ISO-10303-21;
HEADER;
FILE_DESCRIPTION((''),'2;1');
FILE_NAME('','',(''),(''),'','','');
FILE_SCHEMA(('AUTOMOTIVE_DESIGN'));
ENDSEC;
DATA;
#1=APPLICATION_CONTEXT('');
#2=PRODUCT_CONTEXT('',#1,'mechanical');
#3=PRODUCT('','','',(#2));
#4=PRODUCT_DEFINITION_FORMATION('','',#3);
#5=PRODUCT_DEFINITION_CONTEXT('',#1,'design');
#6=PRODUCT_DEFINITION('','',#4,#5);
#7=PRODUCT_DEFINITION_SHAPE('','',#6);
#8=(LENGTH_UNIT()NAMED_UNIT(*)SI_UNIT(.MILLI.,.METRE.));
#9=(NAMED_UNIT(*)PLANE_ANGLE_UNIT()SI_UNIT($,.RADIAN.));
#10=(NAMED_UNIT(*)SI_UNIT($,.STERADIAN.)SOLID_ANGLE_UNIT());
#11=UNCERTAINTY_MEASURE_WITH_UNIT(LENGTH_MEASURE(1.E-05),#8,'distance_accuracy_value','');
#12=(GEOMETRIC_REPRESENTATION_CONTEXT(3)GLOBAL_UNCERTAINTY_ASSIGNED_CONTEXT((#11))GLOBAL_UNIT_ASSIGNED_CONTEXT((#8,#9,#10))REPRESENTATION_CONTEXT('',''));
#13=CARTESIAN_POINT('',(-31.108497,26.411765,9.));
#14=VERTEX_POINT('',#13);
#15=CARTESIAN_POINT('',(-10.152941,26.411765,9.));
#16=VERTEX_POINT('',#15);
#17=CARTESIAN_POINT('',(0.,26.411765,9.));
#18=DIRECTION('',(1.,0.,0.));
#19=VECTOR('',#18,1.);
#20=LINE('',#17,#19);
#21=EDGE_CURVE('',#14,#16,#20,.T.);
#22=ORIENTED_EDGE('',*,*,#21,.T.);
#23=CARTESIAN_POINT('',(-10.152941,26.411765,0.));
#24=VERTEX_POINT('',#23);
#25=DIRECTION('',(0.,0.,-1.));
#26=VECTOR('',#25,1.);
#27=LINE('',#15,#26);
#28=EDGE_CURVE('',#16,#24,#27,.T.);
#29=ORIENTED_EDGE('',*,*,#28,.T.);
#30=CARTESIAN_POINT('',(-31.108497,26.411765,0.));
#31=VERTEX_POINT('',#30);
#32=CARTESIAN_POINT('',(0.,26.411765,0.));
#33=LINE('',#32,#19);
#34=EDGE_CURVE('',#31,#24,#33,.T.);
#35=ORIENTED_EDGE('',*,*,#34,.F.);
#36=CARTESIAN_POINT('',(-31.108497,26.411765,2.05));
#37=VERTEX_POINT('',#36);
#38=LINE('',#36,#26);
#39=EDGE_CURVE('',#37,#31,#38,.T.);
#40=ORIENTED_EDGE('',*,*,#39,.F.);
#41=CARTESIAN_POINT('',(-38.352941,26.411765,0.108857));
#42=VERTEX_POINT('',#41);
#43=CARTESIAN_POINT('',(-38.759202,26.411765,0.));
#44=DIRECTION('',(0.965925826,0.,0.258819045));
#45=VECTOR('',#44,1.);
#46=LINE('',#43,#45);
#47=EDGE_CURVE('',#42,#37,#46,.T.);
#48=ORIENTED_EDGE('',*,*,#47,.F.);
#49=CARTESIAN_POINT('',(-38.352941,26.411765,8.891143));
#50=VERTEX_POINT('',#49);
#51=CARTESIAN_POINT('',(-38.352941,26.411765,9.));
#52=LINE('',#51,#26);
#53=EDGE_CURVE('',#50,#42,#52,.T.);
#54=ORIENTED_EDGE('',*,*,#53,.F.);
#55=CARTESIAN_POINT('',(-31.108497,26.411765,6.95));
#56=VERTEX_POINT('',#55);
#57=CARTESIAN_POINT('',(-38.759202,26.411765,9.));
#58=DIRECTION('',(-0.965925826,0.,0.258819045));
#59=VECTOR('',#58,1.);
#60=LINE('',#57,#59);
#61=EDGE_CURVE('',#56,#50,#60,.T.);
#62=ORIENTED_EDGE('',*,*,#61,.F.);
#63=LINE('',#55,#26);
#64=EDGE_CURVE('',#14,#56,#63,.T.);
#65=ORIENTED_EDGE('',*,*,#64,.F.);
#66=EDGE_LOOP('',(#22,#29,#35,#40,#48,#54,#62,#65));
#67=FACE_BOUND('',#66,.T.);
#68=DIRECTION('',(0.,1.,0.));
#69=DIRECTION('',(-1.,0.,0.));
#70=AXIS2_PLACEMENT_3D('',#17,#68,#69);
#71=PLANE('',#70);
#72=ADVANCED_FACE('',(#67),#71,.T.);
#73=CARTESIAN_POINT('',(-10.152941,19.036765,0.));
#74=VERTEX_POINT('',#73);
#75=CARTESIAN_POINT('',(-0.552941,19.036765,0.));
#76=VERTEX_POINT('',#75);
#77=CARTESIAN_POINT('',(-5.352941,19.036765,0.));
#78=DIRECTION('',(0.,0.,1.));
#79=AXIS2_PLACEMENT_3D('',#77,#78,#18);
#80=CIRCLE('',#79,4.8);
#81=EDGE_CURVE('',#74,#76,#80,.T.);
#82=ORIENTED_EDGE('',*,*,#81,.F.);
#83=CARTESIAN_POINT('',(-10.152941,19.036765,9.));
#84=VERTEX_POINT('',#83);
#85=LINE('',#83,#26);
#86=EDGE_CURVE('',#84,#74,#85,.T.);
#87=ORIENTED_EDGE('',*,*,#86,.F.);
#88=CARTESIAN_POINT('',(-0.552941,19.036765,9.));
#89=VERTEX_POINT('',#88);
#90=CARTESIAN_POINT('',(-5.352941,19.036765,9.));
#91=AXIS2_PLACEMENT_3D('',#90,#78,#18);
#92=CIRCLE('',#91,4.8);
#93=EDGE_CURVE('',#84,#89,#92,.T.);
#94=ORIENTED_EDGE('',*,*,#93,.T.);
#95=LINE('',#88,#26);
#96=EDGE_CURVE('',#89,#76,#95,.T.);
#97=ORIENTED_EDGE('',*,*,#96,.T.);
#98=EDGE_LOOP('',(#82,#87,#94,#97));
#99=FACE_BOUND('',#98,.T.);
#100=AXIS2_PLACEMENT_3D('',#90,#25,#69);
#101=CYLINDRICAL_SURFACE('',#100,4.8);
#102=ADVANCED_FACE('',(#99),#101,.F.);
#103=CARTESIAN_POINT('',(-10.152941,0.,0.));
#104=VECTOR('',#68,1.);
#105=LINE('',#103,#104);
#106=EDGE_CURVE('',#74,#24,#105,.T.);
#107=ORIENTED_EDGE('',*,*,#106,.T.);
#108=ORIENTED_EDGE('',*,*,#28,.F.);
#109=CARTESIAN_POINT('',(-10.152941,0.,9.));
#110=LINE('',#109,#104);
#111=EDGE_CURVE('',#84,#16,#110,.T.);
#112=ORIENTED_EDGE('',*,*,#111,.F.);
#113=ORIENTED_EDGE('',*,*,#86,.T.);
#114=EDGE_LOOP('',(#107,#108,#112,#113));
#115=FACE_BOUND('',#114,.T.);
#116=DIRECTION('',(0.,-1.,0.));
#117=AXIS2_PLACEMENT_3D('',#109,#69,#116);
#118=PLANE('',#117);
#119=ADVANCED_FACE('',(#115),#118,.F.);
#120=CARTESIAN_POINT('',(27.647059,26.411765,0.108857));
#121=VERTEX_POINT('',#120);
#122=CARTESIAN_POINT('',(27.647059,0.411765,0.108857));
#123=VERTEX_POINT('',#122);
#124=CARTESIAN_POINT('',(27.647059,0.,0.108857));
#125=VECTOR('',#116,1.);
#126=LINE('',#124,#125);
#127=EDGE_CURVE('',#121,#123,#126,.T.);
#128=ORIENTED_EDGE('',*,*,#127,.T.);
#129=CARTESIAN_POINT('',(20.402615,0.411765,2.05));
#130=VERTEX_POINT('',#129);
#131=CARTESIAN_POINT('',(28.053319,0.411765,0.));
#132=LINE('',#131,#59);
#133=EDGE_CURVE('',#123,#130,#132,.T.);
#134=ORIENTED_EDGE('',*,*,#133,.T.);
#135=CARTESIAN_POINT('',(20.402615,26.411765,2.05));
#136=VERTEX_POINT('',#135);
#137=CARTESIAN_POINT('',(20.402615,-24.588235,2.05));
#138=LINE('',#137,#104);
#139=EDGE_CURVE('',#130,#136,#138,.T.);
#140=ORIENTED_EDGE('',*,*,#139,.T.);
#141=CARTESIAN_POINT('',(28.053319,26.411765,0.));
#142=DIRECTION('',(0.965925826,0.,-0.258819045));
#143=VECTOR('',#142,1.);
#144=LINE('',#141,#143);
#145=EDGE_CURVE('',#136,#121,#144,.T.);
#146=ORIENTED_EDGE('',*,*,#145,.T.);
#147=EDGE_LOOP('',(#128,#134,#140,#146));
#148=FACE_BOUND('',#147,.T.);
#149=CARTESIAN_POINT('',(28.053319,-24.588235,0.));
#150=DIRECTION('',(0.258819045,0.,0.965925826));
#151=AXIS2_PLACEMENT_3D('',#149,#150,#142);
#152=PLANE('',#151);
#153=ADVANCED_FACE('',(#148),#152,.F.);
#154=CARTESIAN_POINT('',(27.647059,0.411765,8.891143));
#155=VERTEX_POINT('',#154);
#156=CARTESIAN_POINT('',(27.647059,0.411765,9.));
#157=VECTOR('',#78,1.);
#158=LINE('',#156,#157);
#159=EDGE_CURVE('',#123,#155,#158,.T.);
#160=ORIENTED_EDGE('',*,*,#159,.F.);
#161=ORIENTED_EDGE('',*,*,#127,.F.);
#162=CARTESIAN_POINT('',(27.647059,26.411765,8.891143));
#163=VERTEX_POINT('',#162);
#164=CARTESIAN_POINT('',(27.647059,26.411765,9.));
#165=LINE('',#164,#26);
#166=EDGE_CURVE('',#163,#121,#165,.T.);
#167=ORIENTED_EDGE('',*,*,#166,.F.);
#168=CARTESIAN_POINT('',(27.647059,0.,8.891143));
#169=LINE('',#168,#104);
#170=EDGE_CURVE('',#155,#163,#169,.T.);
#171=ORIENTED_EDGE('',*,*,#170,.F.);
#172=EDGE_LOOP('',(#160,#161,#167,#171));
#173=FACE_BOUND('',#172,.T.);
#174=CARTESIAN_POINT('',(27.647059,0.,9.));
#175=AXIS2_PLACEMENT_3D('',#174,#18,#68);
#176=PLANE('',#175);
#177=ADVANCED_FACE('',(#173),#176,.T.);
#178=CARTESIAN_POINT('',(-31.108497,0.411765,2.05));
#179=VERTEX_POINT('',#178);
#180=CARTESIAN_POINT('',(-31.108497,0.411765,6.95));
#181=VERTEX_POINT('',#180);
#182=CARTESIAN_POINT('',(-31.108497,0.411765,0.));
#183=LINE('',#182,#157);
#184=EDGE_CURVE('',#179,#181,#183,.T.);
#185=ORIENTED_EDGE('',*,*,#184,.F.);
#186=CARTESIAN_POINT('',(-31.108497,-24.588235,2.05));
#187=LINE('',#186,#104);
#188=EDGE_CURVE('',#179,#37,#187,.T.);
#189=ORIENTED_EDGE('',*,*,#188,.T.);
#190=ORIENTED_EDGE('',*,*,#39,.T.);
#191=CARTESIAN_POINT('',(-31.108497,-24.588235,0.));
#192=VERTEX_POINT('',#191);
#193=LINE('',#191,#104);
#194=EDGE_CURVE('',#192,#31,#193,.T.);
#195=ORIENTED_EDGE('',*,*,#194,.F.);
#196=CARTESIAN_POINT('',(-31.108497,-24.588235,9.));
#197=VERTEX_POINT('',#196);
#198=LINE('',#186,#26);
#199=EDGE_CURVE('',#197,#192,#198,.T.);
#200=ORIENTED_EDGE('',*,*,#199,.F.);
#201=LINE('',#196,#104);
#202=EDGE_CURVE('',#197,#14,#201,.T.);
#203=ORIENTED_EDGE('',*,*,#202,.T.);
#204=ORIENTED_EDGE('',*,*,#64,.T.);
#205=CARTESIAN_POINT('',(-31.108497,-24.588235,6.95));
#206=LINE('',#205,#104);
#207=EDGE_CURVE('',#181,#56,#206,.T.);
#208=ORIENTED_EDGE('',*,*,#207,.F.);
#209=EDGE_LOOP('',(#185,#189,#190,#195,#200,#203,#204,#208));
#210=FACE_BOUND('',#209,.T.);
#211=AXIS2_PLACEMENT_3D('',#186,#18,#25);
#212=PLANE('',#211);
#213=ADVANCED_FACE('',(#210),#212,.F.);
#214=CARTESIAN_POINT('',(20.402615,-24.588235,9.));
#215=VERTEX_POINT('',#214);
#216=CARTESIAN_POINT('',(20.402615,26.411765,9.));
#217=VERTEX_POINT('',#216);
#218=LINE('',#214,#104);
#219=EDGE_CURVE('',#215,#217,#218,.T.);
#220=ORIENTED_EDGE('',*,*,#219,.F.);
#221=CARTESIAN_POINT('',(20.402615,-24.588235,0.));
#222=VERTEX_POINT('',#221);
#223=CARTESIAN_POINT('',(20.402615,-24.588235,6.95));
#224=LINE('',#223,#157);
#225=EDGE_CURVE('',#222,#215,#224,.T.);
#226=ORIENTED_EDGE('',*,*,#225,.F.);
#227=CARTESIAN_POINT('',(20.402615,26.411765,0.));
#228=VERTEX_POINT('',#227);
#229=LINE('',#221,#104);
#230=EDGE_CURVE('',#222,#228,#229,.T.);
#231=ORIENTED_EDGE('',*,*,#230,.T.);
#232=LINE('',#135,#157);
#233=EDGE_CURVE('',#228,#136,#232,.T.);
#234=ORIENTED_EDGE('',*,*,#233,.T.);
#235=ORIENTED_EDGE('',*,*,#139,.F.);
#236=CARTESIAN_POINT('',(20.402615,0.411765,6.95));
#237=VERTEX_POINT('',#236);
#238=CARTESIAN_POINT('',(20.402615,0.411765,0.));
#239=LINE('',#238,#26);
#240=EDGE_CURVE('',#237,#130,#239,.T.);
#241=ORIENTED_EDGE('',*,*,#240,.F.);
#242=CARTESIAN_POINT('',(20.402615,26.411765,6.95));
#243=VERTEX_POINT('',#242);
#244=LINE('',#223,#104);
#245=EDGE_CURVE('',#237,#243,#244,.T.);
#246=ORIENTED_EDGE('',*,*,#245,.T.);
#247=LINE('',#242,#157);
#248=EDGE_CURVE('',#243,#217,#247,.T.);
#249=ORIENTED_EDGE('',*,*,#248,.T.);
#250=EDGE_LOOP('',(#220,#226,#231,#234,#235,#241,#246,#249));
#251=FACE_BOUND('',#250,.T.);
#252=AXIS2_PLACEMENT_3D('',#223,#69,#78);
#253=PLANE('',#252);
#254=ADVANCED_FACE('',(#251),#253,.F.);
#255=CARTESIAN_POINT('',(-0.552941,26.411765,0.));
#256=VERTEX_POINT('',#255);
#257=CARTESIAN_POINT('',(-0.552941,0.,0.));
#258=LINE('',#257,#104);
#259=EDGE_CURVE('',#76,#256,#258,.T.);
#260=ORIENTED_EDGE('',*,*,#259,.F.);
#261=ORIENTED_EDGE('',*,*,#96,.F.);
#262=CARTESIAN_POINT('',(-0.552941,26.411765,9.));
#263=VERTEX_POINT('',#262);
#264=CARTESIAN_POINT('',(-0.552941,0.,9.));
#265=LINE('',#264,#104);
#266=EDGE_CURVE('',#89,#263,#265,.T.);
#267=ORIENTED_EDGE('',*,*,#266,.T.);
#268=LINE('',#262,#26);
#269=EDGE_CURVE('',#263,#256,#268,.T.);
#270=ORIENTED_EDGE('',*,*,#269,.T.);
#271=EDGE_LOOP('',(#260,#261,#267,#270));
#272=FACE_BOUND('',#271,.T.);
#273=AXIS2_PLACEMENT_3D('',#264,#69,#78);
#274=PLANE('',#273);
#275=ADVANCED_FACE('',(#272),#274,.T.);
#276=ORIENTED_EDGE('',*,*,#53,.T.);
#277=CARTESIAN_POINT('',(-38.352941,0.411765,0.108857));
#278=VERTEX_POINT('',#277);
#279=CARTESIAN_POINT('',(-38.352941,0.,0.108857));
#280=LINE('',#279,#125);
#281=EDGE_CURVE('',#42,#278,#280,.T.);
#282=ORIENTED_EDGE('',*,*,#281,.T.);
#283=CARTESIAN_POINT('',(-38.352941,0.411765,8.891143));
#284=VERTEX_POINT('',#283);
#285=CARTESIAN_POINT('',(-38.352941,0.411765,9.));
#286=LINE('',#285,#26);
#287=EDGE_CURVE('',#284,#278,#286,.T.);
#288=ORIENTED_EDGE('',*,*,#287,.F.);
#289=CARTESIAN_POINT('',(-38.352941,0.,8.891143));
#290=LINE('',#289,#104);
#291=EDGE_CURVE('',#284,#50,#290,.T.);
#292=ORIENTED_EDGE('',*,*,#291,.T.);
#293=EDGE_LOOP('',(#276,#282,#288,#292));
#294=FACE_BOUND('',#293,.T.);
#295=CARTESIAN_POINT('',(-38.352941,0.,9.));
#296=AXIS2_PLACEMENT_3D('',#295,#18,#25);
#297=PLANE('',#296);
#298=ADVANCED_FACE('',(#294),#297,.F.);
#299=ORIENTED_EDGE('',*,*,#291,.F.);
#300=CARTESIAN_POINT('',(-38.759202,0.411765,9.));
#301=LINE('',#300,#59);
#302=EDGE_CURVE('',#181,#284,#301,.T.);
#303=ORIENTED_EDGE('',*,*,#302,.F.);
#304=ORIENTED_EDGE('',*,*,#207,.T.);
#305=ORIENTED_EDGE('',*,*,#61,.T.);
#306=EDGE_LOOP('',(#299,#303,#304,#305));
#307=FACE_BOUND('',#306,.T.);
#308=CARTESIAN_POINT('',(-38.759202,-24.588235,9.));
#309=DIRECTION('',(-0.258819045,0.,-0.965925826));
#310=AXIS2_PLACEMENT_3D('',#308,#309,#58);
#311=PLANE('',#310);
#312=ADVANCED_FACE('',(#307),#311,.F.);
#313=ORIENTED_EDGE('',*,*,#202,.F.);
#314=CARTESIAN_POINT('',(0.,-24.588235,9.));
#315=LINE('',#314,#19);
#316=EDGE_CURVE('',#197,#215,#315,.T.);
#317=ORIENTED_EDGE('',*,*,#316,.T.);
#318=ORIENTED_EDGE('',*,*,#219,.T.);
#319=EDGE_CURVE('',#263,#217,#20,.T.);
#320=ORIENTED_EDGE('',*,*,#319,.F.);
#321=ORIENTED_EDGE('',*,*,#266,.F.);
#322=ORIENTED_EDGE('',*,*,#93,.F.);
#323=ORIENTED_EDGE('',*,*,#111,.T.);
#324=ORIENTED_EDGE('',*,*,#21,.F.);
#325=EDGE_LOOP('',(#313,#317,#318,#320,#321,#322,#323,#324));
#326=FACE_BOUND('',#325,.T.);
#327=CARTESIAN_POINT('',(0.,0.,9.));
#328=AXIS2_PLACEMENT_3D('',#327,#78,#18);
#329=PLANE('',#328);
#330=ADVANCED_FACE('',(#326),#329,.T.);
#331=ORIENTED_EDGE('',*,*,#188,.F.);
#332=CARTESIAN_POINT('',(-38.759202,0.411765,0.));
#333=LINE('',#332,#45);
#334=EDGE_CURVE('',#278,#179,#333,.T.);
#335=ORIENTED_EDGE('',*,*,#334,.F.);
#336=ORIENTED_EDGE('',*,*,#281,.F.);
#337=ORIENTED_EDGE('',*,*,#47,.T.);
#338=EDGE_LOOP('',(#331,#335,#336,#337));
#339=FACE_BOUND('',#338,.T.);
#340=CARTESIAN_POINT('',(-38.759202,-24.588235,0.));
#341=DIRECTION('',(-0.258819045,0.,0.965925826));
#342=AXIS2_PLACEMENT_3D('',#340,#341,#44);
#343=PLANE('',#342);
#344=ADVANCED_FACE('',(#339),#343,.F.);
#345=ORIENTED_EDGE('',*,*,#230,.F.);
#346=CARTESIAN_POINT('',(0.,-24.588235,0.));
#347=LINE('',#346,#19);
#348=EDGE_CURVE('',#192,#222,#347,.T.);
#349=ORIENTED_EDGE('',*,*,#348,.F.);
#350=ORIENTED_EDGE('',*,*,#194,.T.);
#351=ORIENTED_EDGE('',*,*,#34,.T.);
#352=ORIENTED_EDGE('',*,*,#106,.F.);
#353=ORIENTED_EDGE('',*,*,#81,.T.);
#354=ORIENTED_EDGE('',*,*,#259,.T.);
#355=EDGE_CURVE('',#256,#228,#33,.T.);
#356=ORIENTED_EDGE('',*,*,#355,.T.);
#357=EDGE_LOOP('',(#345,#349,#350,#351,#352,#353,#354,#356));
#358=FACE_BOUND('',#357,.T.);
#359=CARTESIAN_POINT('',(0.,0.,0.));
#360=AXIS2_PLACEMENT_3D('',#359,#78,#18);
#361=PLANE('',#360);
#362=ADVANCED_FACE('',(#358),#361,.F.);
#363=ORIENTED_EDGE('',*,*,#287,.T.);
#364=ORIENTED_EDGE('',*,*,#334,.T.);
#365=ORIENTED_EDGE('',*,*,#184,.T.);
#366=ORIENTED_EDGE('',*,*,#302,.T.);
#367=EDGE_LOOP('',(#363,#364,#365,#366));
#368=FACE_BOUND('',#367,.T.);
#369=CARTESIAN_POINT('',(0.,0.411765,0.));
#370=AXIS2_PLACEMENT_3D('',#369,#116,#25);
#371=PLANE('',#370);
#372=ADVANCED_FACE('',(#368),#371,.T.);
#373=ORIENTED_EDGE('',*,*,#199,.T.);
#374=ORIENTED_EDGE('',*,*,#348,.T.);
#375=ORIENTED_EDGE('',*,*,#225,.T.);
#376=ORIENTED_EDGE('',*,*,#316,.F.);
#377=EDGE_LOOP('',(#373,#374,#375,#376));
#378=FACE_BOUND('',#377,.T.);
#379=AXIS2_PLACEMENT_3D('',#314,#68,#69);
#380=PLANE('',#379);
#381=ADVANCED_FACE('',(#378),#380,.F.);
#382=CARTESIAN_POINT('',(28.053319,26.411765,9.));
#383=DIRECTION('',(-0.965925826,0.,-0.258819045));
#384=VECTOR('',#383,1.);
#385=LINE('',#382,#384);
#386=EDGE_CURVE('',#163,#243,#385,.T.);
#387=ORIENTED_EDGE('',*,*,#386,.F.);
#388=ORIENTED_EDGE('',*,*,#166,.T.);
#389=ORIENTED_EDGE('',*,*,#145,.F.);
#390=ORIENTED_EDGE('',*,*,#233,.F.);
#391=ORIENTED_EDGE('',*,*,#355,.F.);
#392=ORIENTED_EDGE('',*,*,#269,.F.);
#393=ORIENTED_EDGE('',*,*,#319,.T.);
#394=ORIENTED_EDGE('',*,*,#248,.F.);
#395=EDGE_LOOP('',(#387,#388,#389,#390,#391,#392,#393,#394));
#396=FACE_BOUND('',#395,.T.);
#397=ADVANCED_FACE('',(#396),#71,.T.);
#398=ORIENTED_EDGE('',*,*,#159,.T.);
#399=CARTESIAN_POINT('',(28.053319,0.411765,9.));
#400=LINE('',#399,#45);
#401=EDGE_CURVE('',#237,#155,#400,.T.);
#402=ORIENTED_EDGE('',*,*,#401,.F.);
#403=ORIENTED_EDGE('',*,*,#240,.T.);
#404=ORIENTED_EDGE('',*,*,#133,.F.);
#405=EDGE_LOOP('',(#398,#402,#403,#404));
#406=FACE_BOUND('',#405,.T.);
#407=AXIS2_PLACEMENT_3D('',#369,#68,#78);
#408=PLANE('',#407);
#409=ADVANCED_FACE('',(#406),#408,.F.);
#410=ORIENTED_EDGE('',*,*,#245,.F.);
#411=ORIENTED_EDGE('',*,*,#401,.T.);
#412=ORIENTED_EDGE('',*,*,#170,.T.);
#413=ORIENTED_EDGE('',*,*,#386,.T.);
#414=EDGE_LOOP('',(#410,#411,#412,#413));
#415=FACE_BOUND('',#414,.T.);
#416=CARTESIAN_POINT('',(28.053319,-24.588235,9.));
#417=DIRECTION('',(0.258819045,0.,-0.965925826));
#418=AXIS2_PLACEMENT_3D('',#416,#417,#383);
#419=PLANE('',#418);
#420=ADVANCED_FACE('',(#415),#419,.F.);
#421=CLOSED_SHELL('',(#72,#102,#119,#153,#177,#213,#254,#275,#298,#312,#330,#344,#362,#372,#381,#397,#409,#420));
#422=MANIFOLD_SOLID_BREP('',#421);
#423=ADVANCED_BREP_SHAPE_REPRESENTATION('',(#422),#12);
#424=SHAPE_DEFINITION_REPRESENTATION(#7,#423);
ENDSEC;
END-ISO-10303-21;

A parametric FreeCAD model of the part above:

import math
import FreeCAD as App
import Part
import Sketcher

V = App.Vector
Q = App.Units.Quantity


def add_polygon(sketch, points):
    """Adds a closed chain of lines whose ends are joined by coincident constraints."""
    first, n = sketch.GeometryCount, len(points)
    for a, b in zip(points, points[1:] + points[:1]):
        sketch.addGeometry(Part.LineSegment(App.Vector(*a, 0), App.Vector(*b, 0)), False)
    for i in range(n):
        sketch.addConstraint(Sketcher.Constraint("Coincident", first + i, 2, first + (i + 1) % n, 1))

doc = App.newDocument("Part")
body = doc.addObject("PartDesign::Body", "Body")

# Sketch on XY plane
sketch1 = body.newObject("Sketcher::SketchObject", "Sketch")
sketch1.AttachmentSupport = (doc.getObject("XY_Plane"), [""])
sketch1.MapMode = "FlatFace"
sketch1.addGeometry([
    Part.LineSegment(V(-10.2, 19, 0), V(-10.2, 26.4, 0)),  # 0
    Part.LineSegment(V(-10.2, 26.4, 0), V(-38.4, 26.4, 0)),  # 1
    Part.LineSegment(V(-38.4, 26.4, 0), V(-38.4, -24.6, 0)),  # 2
    Part.LineSegment(V(-38.4, -24.6, 0), V(27.6, -24.6, 0)),  # 3
    Part.LineSegment(V(27.6, -24.6, 0), V(27.6, 26.4, 0)),  # 4
    Part.LineSegment(V(27.6, 26.4, 0), V(-0.6, 26.4, 0)),  # 5
    Part.LineSegment(V(-0.6, 26.4, 0), V(-0.6, 19, 0)),  # 6
    Part.ArcOfCircle(Part.Circle(V(-5.4, 19, 0), V(0, 0, 1), 4.8), math.radians(180), math.radians(360)),  # 7
], False)
sketch1.addConstraint([
    Sketcher.Constraint("Coincident", 0, 2, 1, 1),
    Sketcher.Constraint("Coincident", 1, 2, 2, 1),
    Sketcher.Constraint("Coincident", 2, 2, 3, 1),
    Sketcher.Constraint("Coincident", 3, 2, 4, 1),
    Sketcher.Constraint("Coincident", 4, 2, 5, 1),
    Sketcher.Constraint("Coincident", 5, 2, 6, 1),
    Sketcher.Constraint("Tangent", 6, 2, 7, 2),
    Sketcher.Constraint("Tangent", 7, 1, 0, 1),
    Sketcher.Constraint("Vertical", 0),
    Sketcher.Constraint("Horizontal", 1),
    Sketcher.Constraint("Vertical", 2),
    Sketcher.Constraint("Horizontal", 3),
    Sketcher.Constraint("Vertical", 4),
    Sketcher.Constraint("Horizontal", 5),
    Sketcher.Constraint("Vertical", 6),
    Sketcher.Constraint("Horizontal", 1, 2, 4, 2),
    Sketcher.Constraint("Equal", 1, 5),
    Sketcher.Constraint("Radius", 7, Q("4.8 mm")),
    Sketcher.Constraint("DistanceX", 3, 1, 3, 2, Q("66 mm")),
    Sketcher.Constraint("DistanceY", 2, 2, 2, 1, Q("51 mm")),
    Sketcher.Constraint("DistanceY", 0, 1, 0, 2, Q("7.375 mm")),
    Sketcher.Constraint("DistanceX", 7, 3, -1, 1, Q("5.352941 mm")),
    Sketcher.Constraint("DistanceY", -1, 1, 7, 3, Q("19.036765 mm")),
])
pad1 = body.newObject("PartDesign::Pad", "Pad")
pad1.Profile = sketch1
pad1.Length = 9

# Sketch on XZ plane
sketch2 = body.newObject("Sketcher::SketchObject", "Sketch001")
sketch2.AttachmentSupport = (doc.getObject("XZ_Plane"), [""])
sketch2.MapMode = "FlatFace"
sketch2.AttachmentOffset = App.Placement(V(0, 0, -26.411765), App.Rotation())
add_polygon(sketch2, [(20.4, 2), (28.1, 0), (20.4, 0)])  # lines 0-2
add_polygon(sketch2, [(28.1, 9), (20.4, 7), (20.4, 9)])  # lines 3-5
add_polygon(sketch2, [(-38.8, 0), (-31.1, 2), (-31.1, 0)])  # lines 6-8
add_polygon(sketch2, [(-31.1, 7), (-38.8, 9), (-31.1, 9)])  # lines 9-11
sketch2.addConstraint([
    Sketcher.Constraint("Horizontal", 1),
    Sketcher.Constraint("Vertical", 2),
    Sketcher.Constraint("Vertical", 4),
    Sketcher.Constraint("Horizontal", 5),
    Sketcher.Constraint("Vertical", 7),
    Sketcher.Constraint("Horizontal", 8),
    Sketcher.Constraint("Horizontal", 10),
    Sketcher.Constraint("Vertical", 11),
    Sketcher.Constraint("PointOnObject", 0, 2, -1),
    Sketcher.Constraint("PointOnObject", 7, 2, -1),
    Sketcher.Constraint("Parallel", 3, 6),
    Sketcher.Constraint("Parallel", 0, 9),
    Sketcher.Constraint("Horizontal", 2, 2, 6, 2),
    Sketcher.Constraint("Horizontal", 5, 2, 9, 2),
    Sketcher.Constraint("Horizontal", 3, 2, 11, 2),
    Sketcher.Constraint("Vertical", 2, 2, 3, 2),
    Sketcher.Constraint("Vertical", 0, 2, 5, 2),
    Sketcher.Constraint("Vertical", 8, 2, 9, 2),
    Sketcher.Constraint("Vertical", 7, 2, 10, 2),
    Sketcher.Constraint("Angle", 0, Q("-15 deg")),
    Sketcher.Constraint("DistanceY", -1, 1, 4, 2, Q("9 mm")),
    Sketcher.Constraint("DistanceY", 2, 1, 2, 2, Q("2.05 mm")),
    Sketcher.Constraint("DistanceX", 8, 2, -1, 1, Q("38.759202 mm")),
    Sketcher.Constraint("DistanceX", -1, 1, 0, 2, Q("28.053319 mm")),
])
pocket1 = body.newObject("PartDesign::Pocket", "Pocket")
pocket1.Profile = sketch2
pocket1.Type = "ThroughAll"
pocket1.Reversed = True

# Sketch on XZ plane
sketch3 = body.newObject("Sketcher::SketchObject", "Sketch002")
sketch3.AttachmentSupport = (doc.getObject("XZ_Plane"), [""])
sketch3.MapMode = "FlatFace"
sketch3.AttachmentOffset = App.Placement(V(0, 0, 24.588235), App.Rotation())
add_polygon(sketch3, [(-39, 9), (-39, 0), (-31, 0), (-31, 9)])  # lines 0-3
add_polygon(sketch3, [(20, 9), (20, 0), (29, 0), (29, 9)])  # lines 4-7
sketch3.addConstraint([
    Sketcher.Constraint("Vertical", 0),
    Sketcher.Constraint("Horizontal", 1),
    Sketcher.Constraint("Vertical", 2),
    Sketcher.Constraint("Horizontal", 3),
    Sketcher.Constraint("Vertical", 4),
    Sketcher.Constraint("Horizontal", 5),
    Sketcher.Constraint("Vertical", 6),
    Sketcher.Constraint("Horizontal", 7),
    Sketcher.Constraint("PointOnObject", 0, 2, -1),
    Sketcher.Constraint("PointOnObject", 4, 2, -1),
    Sketcher.Constraint("Horizontal", 3, 2, 6, 2),
    Sketcher.Constraint("DistanceX", 1, 1, 1, 2, Q("7.545776 mm")),
    Sketcher.Constraint("DistanceX", 5, 1, 5, 2, Q("8.134906 mm")),
    Sketcher.Constraint("DistanceY", 0, 2, 0, 1, Q("9.202794 mm")),
    Sketcher.Constraint("DistanceX", -1, 1, 5, 2, Q("28.537521 mm")),
    Sketcher.Constraint("DistanceX", 0, 2, 4, 2, Q("59.056889 mm")),
])
pocket2 = body.newObject("PartDesign::Pocket", "Pocket001")
pocket2.Profile = sketch3
pocket2.Length = 25

doc.recompute()
